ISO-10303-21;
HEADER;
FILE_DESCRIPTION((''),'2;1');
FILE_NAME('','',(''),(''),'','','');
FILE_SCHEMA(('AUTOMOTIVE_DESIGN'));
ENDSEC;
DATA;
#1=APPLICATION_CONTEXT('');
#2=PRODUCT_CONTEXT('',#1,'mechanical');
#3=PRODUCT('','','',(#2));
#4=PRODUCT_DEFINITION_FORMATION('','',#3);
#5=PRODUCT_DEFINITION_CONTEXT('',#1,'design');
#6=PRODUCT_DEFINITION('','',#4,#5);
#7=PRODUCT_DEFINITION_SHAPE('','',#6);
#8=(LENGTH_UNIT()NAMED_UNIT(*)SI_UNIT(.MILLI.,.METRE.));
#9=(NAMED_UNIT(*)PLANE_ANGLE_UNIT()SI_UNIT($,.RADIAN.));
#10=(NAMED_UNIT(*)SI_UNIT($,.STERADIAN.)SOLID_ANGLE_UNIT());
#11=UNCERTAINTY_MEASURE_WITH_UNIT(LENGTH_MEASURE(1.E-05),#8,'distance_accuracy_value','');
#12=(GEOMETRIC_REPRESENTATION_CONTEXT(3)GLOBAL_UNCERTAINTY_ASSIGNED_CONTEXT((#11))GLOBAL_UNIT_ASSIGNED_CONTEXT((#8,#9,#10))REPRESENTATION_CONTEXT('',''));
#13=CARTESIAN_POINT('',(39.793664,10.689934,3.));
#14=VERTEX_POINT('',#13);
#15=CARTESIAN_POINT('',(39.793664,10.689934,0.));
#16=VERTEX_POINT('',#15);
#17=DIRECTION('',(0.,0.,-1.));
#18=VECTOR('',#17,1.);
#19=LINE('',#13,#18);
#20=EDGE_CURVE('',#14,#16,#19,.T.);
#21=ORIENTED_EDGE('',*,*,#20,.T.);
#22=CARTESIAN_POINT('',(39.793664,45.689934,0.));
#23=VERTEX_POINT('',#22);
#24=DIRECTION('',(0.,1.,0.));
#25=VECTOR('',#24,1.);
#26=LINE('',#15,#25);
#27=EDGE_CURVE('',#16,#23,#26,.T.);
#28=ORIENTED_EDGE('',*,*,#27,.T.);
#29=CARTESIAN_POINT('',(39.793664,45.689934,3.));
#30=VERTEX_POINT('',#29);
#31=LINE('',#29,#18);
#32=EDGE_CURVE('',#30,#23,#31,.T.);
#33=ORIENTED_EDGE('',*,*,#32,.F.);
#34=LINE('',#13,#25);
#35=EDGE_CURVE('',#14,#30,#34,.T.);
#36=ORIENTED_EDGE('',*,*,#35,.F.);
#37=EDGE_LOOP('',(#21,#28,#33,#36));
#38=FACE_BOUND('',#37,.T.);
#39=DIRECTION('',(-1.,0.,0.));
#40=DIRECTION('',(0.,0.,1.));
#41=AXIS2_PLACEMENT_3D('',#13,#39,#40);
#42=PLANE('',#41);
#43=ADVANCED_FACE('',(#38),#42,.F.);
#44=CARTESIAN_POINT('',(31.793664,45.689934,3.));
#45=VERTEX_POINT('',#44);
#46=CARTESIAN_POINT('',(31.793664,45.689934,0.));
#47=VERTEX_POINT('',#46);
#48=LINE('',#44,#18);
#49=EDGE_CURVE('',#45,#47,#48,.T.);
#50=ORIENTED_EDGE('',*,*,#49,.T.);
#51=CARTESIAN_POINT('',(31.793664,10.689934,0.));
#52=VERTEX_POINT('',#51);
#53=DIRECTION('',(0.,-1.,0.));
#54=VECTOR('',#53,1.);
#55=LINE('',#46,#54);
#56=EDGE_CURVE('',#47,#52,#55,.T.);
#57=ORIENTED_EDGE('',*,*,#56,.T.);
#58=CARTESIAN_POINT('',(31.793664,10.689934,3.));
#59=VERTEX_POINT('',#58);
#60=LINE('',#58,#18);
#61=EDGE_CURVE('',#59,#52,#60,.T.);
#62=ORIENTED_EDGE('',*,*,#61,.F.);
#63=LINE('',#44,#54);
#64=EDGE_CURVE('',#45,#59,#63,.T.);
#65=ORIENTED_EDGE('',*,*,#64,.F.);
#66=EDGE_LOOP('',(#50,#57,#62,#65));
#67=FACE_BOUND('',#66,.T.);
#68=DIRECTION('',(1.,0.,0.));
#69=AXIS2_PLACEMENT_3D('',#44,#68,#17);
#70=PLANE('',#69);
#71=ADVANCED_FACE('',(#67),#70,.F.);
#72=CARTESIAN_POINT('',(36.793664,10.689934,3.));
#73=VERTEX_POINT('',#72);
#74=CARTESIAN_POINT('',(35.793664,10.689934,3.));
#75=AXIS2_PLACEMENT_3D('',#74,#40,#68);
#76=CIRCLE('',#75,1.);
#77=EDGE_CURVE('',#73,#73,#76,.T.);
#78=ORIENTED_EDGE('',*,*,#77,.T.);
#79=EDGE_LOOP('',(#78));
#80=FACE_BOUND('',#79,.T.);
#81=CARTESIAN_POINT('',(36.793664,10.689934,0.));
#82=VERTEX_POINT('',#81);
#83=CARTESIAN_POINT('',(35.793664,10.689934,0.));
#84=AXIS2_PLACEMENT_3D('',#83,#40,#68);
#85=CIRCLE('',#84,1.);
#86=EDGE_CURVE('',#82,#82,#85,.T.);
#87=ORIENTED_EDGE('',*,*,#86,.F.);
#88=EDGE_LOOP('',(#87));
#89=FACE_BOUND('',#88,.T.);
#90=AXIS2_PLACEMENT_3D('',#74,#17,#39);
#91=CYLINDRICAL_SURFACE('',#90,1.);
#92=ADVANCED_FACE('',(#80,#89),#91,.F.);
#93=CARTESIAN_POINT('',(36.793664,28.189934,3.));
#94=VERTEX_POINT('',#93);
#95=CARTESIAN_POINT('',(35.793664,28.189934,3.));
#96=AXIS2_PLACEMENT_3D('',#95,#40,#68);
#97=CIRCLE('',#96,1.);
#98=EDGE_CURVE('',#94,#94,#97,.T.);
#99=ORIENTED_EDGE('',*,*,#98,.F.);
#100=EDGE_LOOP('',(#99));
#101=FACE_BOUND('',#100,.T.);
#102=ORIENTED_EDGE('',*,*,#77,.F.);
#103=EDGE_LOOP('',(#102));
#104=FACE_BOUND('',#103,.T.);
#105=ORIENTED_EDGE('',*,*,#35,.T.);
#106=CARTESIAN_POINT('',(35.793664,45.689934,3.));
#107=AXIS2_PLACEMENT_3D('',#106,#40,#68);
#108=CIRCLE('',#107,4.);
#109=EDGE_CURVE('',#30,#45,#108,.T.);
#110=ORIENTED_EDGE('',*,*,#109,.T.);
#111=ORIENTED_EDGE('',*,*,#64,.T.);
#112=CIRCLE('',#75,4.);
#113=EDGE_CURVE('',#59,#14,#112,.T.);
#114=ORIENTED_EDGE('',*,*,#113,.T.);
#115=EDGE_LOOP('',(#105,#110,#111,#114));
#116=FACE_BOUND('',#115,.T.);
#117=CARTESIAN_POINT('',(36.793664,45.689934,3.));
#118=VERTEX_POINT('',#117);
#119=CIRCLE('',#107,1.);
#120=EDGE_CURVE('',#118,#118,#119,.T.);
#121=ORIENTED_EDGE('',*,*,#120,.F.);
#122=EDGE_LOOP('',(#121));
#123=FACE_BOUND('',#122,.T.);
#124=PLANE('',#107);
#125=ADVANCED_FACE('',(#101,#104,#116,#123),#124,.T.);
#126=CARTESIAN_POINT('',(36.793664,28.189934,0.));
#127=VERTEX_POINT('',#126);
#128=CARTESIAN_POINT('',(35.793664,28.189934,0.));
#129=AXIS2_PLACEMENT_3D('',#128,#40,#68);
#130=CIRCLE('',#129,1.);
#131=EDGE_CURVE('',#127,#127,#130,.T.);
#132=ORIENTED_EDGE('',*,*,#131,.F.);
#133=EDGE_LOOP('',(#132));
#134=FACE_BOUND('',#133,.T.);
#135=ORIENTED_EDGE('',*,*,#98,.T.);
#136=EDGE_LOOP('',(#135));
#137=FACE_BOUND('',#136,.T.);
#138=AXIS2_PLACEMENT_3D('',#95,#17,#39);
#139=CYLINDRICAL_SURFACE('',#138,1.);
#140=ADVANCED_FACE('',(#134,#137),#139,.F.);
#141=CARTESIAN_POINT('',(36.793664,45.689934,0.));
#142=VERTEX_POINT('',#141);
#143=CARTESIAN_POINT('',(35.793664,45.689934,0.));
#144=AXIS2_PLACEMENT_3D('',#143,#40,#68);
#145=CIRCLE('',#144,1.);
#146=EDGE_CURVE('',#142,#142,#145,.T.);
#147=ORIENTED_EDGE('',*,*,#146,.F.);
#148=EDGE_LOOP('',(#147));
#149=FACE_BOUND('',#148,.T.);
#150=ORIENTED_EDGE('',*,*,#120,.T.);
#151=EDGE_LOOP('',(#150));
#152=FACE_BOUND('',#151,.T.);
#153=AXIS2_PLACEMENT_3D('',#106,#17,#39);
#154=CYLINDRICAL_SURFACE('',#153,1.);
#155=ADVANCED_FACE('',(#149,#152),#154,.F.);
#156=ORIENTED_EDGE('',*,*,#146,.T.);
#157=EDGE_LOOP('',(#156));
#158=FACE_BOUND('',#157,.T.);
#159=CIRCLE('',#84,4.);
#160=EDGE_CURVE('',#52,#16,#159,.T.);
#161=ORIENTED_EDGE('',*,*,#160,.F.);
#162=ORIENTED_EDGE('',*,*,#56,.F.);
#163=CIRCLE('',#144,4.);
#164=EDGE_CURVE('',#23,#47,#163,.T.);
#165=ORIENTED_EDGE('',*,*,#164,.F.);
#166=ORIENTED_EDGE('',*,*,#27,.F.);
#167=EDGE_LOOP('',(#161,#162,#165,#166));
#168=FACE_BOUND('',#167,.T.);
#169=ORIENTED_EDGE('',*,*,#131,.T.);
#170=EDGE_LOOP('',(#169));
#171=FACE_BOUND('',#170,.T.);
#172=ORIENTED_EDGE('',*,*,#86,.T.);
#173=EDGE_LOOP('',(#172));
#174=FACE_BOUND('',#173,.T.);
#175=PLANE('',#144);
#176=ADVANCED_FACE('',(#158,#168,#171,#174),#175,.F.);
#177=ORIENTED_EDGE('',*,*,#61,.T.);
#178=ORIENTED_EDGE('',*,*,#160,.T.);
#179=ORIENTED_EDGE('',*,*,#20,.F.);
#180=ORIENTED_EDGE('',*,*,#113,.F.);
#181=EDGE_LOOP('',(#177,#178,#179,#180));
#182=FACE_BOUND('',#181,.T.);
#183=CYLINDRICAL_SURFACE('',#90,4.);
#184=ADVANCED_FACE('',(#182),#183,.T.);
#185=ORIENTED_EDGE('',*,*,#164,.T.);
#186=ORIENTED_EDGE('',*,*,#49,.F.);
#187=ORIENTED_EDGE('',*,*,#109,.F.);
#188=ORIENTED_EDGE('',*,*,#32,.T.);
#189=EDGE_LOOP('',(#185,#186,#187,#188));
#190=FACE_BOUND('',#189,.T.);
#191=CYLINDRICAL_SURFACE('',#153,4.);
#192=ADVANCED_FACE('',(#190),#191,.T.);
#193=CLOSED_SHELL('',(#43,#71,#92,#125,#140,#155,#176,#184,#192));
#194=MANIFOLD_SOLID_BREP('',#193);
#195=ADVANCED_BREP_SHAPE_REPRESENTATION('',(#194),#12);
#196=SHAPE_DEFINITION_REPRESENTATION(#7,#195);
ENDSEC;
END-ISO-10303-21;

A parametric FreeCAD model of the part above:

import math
import FreeCAD as App
import Part
import Sketcher

doc = App.newDocument("Part")
body = doc.addObject("PartDesign::Body", "Body")

# Sketch on XY plane
sketch1 = body.newObject("Sketcher::SketchObject", "Sketch")
sketch1.AttachmentSupport = (doc.getObject("XY_Plane"), [""])
sketch1.MapMode = "FlatFace"
sketch1.addGeometry([
    Part.LineSegment(App.Vector(31.793664, 45.689934, 0), App.Vector(31.793664, 10.689934, 0)),  # 0
    Part.ArcOfCircle(Part.Circle(App.Vector(35.793664, 10.689934, 0), App.Vector(0, 0, 1), 4), math.radians(180), math.radians(360)),  # 1
    Part.LineSegment(App.Vector(39.793664, 10.689934, 0), App.Vector(39.793664, 45.689934, 0)),  # 2
    Part.ArcOfCircle(Part.Circle(App.Vector(35.793664, 45.689934, 0), App.Vector(0, 0, 1), 4), math.radians(0), math.radians(180)),  # 3
    Part.Circle(App.Vector(35.793664, 10.689934, 0), App.Vector(0, 0, 1), 1),  # 4
    Part.Circle(App.Vector(35.793664, 28.189934, 0), App.Vector(0, 0, 1), 1),  # 5
    Part.Circle(App.Vector(35.793664, 45.689934, 0), App.Vector(0, 0, 1), 1),  # 6
], False)
sketch1.addConstraint([
    Sketcher.Constraint("Tangent", 0, 2, 1, 1),
    Sketcher.Constraint("Tangent", 1, 2, 2, 1),
    Sketcher.Constraint("Tangent", 2, 2, 3, 1),
    Sketcher.Constraint("Tangent", 3, 2, 0, 1),
    Sketcher.Constraint("Vertical", 0),
    Sketcher.Constraint("Vertical", 2),
    Sketcher.Constraint("Coincident", 4, 3, 1, 3),
    Sketcher.Constraint("Coincident", 6, 3, 3, 3),
    Sketcher.Constraint("Equal", 4, 5),
    Sketcher.Constraint("Equal", 5, 6),
    Sketcher.Constraint("Vertical", 4, 3, 5, 3),
    Sketcher.Constraint("Diameter", 4, 2.0),
    Sketcher.Constraint("Radius", 1, 4.0),
    Sketcher.Constraint("DistanceY", 0, 2, 0, 1, 35.0),
    Sketcher.Constraint("DistanceY", 1, 3, 5, 3, 17.5),
    Sketcher.Constraint("DistanceX", -1, 1, 1, 3, 35.793664),
    Sketcher.Constraint("DistanceY", -1, 1, 1, 3, 10.689934),
])
pad1 = body.newObject("PartDesign::Pad", "Pad")
pad1.Profile = sketch1
pad1.Length = 3

doc.recompute()
